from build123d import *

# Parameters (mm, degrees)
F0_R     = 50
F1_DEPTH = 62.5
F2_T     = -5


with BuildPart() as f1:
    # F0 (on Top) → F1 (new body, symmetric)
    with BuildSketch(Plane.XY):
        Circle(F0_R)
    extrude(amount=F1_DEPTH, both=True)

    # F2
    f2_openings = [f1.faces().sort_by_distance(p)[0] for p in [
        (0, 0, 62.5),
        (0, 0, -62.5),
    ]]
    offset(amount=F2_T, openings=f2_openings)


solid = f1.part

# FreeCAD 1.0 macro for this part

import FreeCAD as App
import Part
import Sketcher
from FreeCAD import Vector
Q = App.Units.Quantity


def faces_at(feature, points):
    """Names of the faces that lie closest to the given points."""
    faces = feature.Shape.Faces
    near = lambda p: min(range(len(faces)), key=lambda i: faces[i].distToShape(Part.Vertex(*p))[0])
    return sorted({f"Face{near(p) + 1}" for p in points})

doc = App.newDocument("Part")
body = doc.addObject("PartDesign::Body", "Body")

# Sketch on XY plane
sketch1 = doc.addObject("Sketcher::SketchObject", "Sketch")
body.addObject(sketch1)
sketch1.AttachmentSupport = (doc.XY_Plane, [""])
sketch1.MapMode = "FlatFace"
sketch1.addGeometry(Part.Circle(Vector(0, 0, 0), Vector(0, 0, 1), 50), False)
sketch1.addConstraint([
    Sketcher.Constraint("Coincident", 0, 3, -1, 1),
    Sketcher.Constraint("Diameter", 0, Q("100 mm")),
])
pad1 = doc.addObject("PartDesign::Pad", "Pad")
body.addObject(pad1)
pad1.Profile = sketch1
pad1.Length = 125
pad1.Midplane = True
doc.recompute()

thickness = doc.addObject("PartDesign::Thickness", "Thickness")
body.addObject(thickness)
thickness.Base = (pad1, faces_at(pad1, [(0, 0, 62.5), (0, 0, -62.5)]))
thickness.Value = 5
thickness.Reversed = True
thickness.Join = "Arc"

doc.recompute()
